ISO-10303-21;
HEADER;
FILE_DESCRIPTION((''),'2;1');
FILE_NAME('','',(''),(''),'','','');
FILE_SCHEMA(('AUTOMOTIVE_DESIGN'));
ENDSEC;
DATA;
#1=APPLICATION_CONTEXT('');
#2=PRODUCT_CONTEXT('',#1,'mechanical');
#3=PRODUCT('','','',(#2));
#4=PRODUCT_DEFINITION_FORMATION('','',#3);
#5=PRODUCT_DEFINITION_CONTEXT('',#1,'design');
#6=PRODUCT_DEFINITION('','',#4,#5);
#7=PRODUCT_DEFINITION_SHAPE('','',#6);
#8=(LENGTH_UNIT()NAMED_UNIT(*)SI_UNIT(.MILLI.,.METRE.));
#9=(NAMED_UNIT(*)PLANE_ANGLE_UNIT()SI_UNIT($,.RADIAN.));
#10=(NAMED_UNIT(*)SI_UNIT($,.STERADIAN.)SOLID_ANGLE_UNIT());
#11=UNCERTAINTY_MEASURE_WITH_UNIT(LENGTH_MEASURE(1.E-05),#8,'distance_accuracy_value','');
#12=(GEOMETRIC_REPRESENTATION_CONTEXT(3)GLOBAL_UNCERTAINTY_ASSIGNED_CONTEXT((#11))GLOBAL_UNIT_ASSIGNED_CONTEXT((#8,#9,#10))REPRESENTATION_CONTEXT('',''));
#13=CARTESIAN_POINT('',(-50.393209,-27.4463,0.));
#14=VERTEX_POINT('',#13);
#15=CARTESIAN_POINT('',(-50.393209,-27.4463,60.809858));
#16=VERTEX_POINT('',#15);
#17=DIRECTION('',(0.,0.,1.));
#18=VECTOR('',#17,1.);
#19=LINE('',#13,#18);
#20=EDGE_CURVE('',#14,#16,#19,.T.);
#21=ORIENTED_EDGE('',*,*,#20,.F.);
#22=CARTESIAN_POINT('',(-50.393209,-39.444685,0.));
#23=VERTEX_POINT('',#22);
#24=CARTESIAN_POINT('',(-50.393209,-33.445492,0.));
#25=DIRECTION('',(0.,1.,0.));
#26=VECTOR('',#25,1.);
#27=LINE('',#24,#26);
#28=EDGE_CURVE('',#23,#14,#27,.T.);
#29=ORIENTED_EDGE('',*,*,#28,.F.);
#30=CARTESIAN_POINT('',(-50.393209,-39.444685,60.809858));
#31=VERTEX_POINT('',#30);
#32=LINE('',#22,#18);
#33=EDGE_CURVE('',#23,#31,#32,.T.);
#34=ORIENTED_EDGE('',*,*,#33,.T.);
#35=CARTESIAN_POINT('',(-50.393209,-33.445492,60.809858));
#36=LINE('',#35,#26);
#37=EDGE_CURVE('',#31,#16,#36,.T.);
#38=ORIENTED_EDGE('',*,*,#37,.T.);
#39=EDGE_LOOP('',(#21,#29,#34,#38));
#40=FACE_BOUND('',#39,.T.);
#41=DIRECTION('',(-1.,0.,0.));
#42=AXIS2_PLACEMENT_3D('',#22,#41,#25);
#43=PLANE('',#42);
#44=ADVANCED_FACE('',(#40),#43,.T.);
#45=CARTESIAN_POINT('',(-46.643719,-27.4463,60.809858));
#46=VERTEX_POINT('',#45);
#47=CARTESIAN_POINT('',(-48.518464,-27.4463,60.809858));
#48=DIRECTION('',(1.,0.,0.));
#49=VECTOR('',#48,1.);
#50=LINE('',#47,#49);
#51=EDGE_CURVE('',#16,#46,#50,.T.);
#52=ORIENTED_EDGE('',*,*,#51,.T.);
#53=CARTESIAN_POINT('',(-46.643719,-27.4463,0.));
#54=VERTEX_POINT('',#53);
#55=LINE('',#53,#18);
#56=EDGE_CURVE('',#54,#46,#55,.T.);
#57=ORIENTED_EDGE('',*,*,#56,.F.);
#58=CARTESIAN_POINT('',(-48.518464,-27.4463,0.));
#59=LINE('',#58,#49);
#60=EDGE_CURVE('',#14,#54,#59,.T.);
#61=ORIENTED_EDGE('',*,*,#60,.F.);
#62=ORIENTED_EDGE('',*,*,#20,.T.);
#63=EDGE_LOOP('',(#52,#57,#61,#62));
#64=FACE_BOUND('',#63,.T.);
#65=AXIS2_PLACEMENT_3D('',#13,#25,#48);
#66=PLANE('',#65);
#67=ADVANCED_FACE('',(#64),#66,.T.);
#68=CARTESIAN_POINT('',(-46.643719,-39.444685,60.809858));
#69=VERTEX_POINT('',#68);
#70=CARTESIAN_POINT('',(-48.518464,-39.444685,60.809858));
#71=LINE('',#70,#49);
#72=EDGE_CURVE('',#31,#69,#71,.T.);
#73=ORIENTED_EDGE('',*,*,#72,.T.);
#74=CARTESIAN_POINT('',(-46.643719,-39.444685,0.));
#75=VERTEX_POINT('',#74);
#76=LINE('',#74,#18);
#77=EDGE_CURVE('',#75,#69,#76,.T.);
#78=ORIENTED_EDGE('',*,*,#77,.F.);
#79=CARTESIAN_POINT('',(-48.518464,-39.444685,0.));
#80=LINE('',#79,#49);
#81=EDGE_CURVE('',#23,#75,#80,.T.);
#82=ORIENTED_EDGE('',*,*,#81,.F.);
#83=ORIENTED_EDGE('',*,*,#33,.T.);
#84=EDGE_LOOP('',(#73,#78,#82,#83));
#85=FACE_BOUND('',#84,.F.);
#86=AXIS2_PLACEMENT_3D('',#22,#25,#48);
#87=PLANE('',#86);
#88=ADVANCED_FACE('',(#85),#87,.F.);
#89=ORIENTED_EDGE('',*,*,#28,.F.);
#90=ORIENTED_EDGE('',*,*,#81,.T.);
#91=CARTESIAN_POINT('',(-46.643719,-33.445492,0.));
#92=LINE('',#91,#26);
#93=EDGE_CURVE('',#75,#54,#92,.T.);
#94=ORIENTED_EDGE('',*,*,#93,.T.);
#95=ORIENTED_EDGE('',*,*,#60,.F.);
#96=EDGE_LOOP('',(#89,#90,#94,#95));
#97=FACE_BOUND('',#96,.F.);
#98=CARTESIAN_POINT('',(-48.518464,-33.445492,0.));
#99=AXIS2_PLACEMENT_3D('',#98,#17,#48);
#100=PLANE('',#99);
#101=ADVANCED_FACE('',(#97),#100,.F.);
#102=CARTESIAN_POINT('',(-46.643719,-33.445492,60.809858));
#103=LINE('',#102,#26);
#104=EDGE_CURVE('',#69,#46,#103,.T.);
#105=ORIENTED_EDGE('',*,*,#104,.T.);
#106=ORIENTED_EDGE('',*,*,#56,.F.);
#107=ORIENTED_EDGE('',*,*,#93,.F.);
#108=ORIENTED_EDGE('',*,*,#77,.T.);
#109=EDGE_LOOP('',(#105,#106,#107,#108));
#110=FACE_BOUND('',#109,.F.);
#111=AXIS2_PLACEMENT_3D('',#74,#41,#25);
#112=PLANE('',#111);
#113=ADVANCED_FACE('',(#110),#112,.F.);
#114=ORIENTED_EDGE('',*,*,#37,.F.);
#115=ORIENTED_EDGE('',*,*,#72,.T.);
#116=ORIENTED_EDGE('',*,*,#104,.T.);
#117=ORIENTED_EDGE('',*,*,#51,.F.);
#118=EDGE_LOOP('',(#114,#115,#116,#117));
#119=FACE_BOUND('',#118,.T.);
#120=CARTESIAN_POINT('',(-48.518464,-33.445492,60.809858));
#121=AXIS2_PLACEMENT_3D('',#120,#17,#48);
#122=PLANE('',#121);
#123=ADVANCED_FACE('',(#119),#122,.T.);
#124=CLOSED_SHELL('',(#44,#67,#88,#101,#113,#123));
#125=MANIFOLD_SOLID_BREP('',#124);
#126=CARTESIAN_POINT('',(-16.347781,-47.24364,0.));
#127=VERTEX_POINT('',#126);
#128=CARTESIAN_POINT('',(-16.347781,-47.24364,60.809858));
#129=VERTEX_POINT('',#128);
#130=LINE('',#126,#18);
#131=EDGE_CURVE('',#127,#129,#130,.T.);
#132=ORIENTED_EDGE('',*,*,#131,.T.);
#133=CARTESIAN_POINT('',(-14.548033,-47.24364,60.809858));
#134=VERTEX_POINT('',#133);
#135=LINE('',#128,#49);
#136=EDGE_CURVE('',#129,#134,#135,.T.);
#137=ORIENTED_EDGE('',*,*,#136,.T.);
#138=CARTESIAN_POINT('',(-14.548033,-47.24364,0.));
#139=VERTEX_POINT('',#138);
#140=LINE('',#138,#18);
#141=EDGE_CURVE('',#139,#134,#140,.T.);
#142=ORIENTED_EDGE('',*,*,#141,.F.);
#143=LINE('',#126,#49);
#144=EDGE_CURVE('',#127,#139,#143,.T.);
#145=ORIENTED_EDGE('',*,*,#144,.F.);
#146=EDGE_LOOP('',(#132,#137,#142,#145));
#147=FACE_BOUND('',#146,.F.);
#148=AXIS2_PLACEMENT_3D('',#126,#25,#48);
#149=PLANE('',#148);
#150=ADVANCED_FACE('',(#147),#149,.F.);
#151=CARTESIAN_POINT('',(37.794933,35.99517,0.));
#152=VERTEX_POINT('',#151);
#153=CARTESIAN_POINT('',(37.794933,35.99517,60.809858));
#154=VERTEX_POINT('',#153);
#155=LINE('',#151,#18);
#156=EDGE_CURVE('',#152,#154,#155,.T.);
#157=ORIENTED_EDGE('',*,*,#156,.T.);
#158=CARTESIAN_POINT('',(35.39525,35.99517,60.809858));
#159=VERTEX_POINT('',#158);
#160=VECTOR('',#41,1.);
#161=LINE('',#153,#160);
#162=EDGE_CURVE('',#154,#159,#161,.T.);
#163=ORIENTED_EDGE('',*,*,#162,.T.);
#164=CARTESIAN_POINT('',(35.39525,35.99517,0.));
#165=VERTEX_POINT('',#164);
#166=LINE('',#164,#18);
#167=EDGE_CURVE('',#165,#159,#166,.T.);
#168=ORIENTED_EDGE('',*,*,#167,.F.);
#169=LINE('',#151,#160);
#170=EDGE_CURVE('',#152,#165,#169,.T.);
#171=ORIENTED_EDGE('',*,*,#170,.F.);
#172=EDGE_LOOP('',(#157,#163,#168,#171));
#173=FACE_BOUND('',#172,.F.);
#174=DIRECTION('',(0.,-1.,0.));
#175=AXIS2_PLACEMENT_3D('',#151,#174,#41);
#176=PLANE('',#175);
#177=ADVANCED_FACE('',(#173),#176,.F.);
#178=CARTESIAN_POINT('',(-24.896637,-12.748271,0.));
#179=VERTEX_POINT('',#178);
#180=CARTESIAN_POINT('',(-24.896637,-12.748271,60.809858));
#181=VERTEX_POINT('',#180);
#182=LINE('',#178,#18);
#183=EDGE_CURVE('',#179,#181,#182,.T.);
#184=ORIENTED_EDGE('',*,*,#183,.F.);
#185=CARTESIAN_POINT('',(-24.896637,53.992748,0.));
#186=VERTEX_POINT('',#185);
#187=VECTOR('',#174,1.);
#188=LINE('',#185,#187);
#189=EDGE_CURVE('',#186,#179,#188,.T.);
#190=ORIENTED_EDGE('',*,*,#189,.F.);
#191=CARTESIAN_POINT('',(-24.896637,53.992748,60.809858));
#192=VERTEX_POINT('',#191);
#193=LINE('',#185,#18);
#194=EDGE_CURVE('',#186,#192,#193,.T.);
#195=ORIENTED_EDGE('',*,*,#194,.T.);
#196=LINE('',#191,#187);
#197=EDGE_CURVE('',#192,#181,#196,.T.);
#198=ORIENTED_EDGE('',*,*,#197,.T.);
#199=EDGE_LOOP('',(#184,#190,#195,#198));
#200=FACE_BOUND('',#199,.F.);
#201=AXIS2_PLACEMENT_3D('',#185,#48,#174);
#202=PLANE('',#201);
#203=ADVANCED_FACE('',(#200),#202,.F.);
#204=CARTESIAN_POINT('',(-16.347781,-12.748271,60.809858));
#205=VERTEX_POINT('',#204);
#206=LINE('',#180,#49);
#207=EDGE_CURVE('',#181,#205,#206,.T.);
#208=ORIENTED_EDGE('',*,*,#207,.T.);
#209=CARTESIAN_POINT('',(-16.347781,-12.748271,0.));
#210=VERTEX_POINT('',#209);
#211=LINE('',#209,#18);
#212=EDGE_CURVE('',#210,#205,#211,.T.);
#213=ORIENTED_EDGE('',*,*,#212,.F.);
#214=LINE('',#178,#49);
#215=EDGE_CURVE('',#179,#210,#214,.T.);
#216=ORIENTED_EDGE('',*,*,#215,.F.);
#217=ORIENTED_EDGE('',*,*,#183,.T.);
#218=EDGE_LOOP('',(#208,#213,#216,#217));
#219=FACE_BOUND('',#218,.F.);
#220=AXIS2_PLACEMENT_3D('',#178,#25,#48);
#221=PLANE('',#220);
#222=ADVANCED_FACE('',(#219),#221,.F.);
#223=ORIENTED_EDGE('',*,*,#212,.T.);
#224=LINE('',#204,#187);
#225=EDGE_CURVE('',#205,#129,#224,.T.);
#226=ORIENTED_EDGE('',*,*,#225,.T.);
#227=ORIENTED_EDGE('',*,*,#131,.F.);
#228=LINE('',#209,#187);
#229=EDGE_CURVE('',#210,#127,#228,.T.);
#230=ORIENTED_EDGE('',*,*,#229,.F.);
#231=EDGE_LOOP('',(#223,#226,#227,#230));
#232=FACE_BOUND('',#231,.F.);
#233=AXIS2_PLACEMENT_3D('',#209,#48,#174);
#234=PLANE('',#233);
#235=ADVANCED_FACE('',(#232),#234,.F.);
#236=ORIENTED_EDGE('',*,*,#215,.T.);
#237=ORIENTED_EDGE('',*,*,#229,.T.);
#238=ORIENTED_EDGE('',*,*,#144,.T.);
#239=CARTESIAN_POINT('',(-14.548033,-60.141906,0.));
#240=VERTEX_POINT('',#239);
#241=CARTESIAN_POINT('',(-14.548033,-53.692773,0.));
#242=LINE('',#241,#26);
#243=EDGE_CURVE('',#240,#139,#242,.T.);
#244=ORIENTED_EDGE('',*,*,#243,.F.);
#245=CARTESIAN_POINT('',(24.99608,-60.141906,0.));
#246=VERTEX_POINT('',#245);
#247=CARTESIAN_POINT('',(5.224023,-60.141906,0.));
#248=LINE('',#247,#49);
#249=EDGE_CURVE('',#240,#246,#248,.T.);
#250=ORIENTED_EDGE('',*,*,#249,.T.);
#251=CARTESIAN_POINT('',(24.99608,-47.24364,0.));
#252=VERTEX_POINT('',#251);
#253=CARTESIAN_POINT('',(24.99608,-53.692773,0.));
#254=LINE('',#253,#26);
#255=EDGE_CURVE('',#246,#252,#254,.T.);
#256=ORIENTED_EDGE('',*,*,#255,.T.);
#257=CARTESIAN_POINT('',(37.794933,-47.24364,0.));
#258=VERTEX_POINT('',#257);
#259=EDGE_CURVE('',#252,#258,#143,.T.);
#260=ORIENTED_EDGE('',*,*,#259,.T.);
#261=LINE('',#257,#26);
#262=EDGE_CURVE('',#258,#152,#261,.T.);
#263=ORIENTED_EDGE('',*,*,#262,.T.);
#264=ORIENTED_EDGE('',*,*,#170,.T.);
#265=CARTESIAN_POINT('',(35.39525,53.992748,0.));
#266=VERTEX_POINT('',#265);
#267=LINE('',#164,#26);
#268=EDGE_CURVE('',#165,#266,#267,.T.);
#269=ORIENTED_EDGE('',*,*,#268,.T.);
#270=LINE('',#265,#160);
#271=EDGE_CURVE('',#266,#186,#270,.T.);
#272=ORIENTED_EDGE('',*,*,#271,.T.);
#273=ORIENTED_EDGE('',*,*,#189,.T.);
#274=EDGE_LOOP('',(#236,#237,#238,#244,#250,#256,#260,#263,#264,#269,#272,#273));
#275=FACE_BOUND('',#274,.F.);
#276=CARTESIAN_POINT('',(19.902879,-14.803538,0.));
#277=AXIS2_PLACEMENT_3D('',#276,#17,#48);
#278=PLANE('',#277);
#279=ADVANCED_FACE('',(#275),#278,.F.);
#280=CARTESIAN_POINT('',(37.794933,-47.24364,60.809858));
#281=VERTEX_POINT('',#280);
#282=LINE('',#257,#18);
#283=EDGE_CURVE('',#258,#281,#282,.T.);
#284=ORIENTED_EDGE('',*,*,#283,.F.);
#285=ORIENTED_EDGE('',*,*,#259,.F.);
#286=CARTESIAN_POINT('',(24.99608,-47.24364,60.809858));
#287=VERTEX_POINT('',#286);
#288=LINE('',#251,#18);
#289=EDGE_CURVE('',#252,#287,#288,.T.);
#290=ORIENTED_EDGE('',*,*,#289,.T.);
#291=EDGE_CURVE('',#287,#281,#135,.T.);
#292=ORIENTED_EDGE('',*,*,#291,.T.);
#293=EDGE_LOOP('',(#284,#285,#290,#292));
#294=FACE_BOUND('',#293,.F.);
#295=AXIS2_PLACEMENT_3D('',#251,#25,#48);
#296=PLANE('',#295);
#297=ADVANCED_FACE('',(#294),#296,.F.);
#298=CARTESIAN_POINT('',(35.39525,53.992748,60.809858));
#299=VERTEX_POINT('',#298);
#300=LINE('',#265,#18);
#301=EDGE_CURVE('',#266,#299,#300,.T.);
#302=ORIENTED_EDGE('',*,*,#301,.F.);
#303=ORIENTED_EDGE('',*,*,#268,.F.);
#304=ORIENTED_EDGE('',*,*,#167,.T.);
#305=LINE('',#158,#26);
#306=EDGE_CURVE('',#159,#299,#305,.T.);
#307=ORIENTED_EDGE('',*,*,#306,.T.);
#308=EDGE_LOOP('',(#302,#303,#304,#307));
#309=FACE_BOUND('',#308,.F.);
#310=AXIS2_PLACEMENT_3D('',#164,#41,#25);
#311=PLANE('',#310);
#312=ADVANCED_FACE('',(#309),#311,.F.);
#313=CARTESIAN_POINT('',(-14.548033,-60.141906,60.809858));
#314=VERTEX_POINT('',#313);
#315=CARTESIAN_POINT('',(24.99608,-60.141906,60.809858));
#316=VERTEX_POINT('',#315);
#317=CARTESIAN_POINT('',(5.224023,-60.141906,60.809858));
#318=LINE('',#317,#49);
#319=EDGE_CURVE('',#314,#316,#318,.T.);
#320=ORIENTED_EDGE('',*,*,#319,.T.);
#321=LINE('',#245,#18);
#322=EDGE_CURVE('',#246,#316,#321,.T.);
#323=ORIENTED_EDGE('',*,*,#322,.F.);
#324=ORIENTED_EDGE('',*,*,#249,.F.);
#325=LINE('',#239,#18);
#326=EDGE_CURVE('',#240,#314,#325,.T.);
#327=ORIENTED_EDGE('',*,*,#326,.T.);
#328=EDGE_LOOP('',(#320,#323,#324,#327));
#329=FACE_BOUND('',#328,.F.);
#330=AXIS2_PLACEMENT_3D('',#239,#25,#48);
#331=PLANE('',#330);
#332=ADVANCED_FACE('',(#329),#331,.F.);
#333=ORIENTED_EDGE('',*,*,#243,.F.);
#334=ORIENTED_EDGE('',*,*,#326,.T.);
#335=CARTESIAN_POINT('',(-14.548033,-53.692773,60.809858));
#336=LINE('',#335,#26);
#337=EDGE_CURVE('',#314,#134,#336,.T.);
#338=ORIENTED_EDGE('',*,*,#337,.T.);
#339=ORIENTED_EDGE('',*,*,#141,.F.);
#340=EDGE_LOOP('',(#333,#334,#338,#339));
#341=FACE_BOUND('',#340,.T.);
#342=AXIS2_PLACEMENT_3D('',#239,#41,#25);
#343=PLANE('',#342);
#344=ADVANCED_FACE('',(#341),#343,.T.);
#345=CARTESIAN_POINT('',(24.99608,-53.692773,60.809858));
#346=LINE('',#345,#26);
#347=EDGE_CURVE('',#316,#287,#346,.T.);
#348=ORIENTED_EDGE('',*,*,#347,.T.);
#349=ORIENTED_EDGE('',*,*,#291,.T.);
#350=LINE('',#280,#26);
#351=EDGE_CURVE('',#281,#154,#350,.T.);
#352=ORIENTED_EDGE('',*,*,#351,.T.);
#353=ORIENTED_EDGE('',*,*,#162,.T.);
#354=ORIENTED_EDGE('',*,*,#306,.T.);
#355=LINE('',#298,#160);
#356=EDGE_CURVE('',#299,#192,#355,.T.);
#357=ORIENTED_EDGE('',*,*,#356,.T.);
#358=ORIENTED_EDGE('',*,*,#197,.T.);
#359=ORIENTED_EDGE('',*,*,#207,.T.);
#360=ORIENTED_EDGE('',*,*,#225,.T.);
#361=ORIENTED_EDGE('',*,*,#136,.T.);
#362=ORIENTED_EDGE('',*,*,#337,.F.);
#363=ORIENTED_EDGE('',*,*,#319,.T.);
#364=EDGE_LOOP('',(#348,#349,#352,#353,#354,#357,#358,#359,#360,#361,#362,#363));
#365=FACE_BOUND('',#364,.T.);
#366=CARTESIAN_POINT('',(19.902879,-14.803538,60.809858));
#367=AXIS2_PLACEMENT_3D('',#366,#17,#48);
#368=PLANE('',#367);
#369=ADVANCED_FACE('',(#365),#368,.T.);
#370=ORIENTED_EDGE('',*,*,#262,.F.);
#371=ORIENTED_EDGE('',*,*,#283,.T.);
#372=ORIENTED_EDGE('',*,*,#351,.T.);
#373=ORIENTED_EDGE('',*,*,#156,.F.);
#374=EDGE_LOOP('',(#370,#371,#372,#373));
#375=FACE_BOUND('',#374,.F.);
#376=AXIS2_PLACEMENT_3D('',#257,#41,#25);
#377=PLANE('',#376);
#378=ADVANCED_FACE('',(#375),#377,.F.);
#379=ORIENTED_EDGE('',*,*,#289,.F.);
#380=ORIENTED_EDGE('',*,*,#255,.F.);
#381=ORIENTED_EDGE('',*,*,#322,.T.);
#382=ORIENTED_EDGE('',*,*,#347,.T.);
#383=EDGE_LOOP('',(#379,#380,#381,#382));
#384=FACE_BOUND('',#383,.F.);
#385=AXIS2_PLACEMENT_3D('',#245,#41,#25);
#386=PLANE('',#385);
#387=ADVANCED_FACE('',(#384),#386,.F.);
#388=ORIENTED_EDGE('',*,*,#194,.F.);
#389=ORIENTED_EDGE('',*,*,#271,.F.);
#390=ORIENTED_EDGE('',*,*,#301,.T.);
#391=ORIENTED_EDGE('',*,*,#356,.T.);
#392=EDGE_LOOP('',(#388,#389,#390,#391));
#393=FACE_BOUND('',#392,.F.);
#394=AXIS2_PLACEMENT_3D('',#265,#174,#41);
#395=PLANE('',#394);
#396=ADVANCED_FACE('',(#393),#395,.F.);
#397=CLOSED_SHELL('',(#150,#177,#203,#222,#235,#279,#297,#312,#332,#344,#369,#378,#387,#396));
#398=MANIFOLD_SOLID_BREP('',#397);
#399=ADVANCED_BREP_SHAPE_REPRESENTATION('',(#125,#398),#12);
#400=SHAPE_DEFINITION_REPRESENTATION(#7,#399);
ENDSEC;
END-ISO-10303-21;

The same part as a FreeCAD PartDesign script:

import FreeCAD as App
import Part
import Sketcher
Q = App.Units.Quantity

doc = App.newDocument("Part")
params = doc.addObject("Spreadsheet::Sheet", "Params")
for row, (alias, value) in enumerate([
    ("pad1_length", "60.809858 mm"),
    ("pad2_length", "60.809858 mm"),
], start=1):
    params.set(f"A{row}", alias)
    params.set(f"B{row}", "=" + value)
    params.setAlias(f"B{row}", alias)

body = doc.addObject("PartDesign::Body", "Body")

# Sketch on XY plane
sketch1 = body.newObject("Sketcher::SketchObject", "Sketch")
sketch1.AttachmentSupport = (doc.getObject("XY_Plane"), [""])
sketch1.MapMode = "FlatFace"
sketch1.addGeometry(Part.LineSegment(App.Vector(-16.347781, -12.748271, 0), App.Vector(-16.347781, -47.24364, 0)), False)
sketch1.addGeometry(Part.LineSegment(App.Vector(-16.347781, -47.24364, 0), App.Vector(-14.548033, -47.24364, 0)), False)
sketch1.addGeometry(Part.LineSegment(App.Vector(-14.548033, -47.24364, 0), App.Vector(-14.548033, -60.141906, 0)), False)
sketch1.addGeometry(Part.LineSegment(App.Vector(-14.548033, -60.141906, 0), App.Vector(24.99608, -60.141906, 0)), False)
sketch1.addGeometry(Part.LineSegment(App.Vector(24.99608, -60.141906, 0), App.Vector(24.99608, -47.24364, 0)), False)
sketch1.addGeometry(Part.LineSegment(App.Vector(24.99608, -47.24364, 0), App.Vector(37.794933, -47.24364, 0)), False)
sketch1.addGeometry(Part.LineSegment(App.Vector(37.794933, -47.24364, 0), App.Vector(37.794933, 35.99517, 0)), False)
sketch1.addGeometry(Part.LineSegment(App.Vector(37.794933, 35.99517, 0), App.Vector(35.39525, 35.99517, 0)), False)
sketch1.addGeometry(Part.LineSegment(App.Vector(35.39525, 35.99517, 0), App.Vector(35.39525, 53.992748, 0)), False)
sketch1.addGeometry(Part.LineSegment(App.Vector(35.39525, 53.992748, 0), App.Vector(-24.896637, 53.992748, 0)), False)
sketch1.addGeometry(Part.LineSegment(App.Vector(-24.896637, 53.992748, 0), App.Vector(-24.896637, -12.748271, 0)), False)
sketch1.addGeometry(Part.LineSegment(App.Vector(-24.896637, -12.748271, 0), App.Vector(-16.347781, -12.748271, 0)), False)
sketch1.addConstraint(Sketcher.Constraint("Coincident", 0, 2, 1, 1))
sketch1.addConstraint(Sketcher.Constraint("Coincident", 1, 2, 2, 1))
sketch1.addConstraint(Sketcher.Constraint("Coincident", 2, 2, 3, 1))
sketch1.addConstraint(Sketcher.Constraint("Coincident", 3, 2, 4, 1))
sketch1.addConstraint(Sketcher.Constraint("Coincident", 4, 2, 5, 1))
sketch1.addConstraint(Sketcher.Constraint("Coincident", 5, 2, 6, 1))
sketch1.addConstraint(Sketcher.Constraint("Coincident", 6, 2, 7, 1))
sketch1.addConstraint(Sketcher.Constraint("Coincident", 7, 2, 8, 1))
sketch1.addConstraint(Sketcher.Constraint("Coincident", 8, 2, 9, 1))
sketch1.addConstraint(Sketcher.Constraint("Coincident", 9, 2, 10, 1))
sketch1.addConstraint(Sketcher.Constraint("Coincident", 10, 2, 11, 1))
sketch1.addConstraint(Sketcher.Constraint("Coincident", 11, 2, 0, 1))
sketch1.addConstraint(Sketcher.Constraint("Vertical", 0))
sketch1.addConstraint(Sketcher.Constraint("Horizontal", 1))
sketch1.addConstraint(Sketcher.Constraint("Vertical", 2))
sketch1.addConstraint(Sketcher.Constraint("Horizontal", 3))
sketch1.addConstraint(Sketcher.Constraint("Vertical", 4))
sketch1.addConstraint(Sketcher.Constraint("Horizontal", 5))
sketch1.addConstraint(Sketcher.Constraint("Vertical", 6))
sketch1.addConstraint(Sketcher.Constraint("Horizontal", 7))
sketch1.addConstraint(Sketcher.Constraint("Vertical", 8))
sketch1.addConstraint(Sketcher.Constraint("Horizontal", 9))
sketch1.addConstraint(Sketcher.Constraint("Vertical", 10))
sketch1.addConstraint(Sketcher.Constraint("Horizontal", 11))
sketch1.addConstraint(Sketcher.Constraint("Horizontal", 1, 2, 4, 2))
sketch1.addConstraint(Sketcher.Constraint("DistanceY", 0, 2, 0, 1, Q("34.495369 mm")))
sketch1.addConstraint(Sketcher.Constraint("DistanceY", 6, 1, 6, 2, Q("83.23881 mm")))
sketch1.addConstraint(Sketcher.Constraint("DistanceY", 10, 2, 10, 1, Q("66.741019 mm")))
sketch1.addConstraint(Sketcher.Constraint("DistanceX", 1, 1, 1, 2, Q("1.799747 mm")))
sketch1.addConstraint(Sketcher.Constraint("DistanceX", 3, 1, 3, 2, Q("39.544113 mm")))
sketch1.addConstraint(Sketcher.Constraint("DistanceX", 5, 1, 5, 2, Q("12.798853 mm")))
sketch1.addConstraint(Sketcher.Constraint("DistanceX", 7, 2, 7, 1, Q("2.399683 mm")))
sketch1.addConstraint(Sketcher.Constraint("DistanceX", 9, 2, 9, 1, Q("60.291886 mm")))
sketch1.addConstraint(Sketcher.Constraint("DistanceY", 2, 2, 2, 1, Q("12.898266 mm")))
sketch1.addConstraint(Sketcher.Constraint("DistanceX", 0, 2, -1, 1, Q("16.347781 mm")))
sketch1.addConstraint(Sketcher.Constraint("DistanceY", 0, 2, -1, 1, Q("47.24364 mm")))
pad1 = body.newObject("PartDesign::Pad", "Pad")
pad1.Profile = sketch1
pad1.setExpression("Length", "Params.pad1_length")
body2 = doc.addObject("PartDesign::Body", "Body001")

# Sketch on XY plane
sketch2 = body2.newObject("Sketcher::SketchObject", "Sketch001")
sketch2.AttachmentSupport = (doc.getObject("XY_Plane001"), [""])
sketch2.MapMode = "FlatFace"
sketch2.addGeometry(Part.LineSegment(App.Vector(-50.393209, -27.4463, 0), App.Vector(-50.393209, -39.444685, 0)), False)
sketch2.addGeometry(Part.LineSegment(App.Vector(-50.393209, -39.444685, 0), App.Vector(-46.643719, -39.444685, 0)), False)
sketch2.addGeometry(Part.LineSegment(App.Vector(-46.643719, -39.444685, 0), App.Vector(-46.643719, -27.4463, 0)), False)
sketch2.addGeometry(Part.LineSegment(App.Vector(-46.643719, -27.4463, 0), App.Vector(-50.393209, -27.4463, 0)), False)
sketch2.addConstraint(Sketcher.Constraint("Coincident", 0, 2, 1, 1))
sketch2.addConstraint(Sketcher.Constraint("Coincident", 1, 2, 2, 1))
sketch2.addConstraint(Sketcher.Constraint("Coincident", 2, 2, 3, 1))
sketch2.addConstraint(Sketcher.Constraint("Coincident", 3, 2, 0, 1))
sketch2.addConstraint(Sketcher.Constraint("Vertical", 0))
sketch2.addConstraint(Sketcher.Constraint("Horizontal", 1))
sketch2.addConstraint(Sketcher.Constraint("Vertical", 2))
sketch2.addConstraint(Sketcher.Constraint("Horizontal", 3))
sketch2.addConstraint(Sketcher.Constraint("DistanceX", 1, 1, 1, 2, Q("3.74949 mm")))
sketch2.addConstraint(Sketcher.Constraint("DistanceY", 2, 2, -1, 1, Q("27.4463 mm")))
sketch2.addConstraint(Sketcher.Constraint("DistanceY", 0, 2, 0, 1, Q("11.998385 mm")))
sketch2.addConstraint(Sketcher.Constraint("DistanceX", 0, 2, -1, 1, Q("50.393209 mm")))
pad2 = body2.newObject("PartDesign::Pad", "Pad001")
pad2.Profile = sketch2
pad2.setExpression("Length", "Params.pad2_length")

doc.recompute()
